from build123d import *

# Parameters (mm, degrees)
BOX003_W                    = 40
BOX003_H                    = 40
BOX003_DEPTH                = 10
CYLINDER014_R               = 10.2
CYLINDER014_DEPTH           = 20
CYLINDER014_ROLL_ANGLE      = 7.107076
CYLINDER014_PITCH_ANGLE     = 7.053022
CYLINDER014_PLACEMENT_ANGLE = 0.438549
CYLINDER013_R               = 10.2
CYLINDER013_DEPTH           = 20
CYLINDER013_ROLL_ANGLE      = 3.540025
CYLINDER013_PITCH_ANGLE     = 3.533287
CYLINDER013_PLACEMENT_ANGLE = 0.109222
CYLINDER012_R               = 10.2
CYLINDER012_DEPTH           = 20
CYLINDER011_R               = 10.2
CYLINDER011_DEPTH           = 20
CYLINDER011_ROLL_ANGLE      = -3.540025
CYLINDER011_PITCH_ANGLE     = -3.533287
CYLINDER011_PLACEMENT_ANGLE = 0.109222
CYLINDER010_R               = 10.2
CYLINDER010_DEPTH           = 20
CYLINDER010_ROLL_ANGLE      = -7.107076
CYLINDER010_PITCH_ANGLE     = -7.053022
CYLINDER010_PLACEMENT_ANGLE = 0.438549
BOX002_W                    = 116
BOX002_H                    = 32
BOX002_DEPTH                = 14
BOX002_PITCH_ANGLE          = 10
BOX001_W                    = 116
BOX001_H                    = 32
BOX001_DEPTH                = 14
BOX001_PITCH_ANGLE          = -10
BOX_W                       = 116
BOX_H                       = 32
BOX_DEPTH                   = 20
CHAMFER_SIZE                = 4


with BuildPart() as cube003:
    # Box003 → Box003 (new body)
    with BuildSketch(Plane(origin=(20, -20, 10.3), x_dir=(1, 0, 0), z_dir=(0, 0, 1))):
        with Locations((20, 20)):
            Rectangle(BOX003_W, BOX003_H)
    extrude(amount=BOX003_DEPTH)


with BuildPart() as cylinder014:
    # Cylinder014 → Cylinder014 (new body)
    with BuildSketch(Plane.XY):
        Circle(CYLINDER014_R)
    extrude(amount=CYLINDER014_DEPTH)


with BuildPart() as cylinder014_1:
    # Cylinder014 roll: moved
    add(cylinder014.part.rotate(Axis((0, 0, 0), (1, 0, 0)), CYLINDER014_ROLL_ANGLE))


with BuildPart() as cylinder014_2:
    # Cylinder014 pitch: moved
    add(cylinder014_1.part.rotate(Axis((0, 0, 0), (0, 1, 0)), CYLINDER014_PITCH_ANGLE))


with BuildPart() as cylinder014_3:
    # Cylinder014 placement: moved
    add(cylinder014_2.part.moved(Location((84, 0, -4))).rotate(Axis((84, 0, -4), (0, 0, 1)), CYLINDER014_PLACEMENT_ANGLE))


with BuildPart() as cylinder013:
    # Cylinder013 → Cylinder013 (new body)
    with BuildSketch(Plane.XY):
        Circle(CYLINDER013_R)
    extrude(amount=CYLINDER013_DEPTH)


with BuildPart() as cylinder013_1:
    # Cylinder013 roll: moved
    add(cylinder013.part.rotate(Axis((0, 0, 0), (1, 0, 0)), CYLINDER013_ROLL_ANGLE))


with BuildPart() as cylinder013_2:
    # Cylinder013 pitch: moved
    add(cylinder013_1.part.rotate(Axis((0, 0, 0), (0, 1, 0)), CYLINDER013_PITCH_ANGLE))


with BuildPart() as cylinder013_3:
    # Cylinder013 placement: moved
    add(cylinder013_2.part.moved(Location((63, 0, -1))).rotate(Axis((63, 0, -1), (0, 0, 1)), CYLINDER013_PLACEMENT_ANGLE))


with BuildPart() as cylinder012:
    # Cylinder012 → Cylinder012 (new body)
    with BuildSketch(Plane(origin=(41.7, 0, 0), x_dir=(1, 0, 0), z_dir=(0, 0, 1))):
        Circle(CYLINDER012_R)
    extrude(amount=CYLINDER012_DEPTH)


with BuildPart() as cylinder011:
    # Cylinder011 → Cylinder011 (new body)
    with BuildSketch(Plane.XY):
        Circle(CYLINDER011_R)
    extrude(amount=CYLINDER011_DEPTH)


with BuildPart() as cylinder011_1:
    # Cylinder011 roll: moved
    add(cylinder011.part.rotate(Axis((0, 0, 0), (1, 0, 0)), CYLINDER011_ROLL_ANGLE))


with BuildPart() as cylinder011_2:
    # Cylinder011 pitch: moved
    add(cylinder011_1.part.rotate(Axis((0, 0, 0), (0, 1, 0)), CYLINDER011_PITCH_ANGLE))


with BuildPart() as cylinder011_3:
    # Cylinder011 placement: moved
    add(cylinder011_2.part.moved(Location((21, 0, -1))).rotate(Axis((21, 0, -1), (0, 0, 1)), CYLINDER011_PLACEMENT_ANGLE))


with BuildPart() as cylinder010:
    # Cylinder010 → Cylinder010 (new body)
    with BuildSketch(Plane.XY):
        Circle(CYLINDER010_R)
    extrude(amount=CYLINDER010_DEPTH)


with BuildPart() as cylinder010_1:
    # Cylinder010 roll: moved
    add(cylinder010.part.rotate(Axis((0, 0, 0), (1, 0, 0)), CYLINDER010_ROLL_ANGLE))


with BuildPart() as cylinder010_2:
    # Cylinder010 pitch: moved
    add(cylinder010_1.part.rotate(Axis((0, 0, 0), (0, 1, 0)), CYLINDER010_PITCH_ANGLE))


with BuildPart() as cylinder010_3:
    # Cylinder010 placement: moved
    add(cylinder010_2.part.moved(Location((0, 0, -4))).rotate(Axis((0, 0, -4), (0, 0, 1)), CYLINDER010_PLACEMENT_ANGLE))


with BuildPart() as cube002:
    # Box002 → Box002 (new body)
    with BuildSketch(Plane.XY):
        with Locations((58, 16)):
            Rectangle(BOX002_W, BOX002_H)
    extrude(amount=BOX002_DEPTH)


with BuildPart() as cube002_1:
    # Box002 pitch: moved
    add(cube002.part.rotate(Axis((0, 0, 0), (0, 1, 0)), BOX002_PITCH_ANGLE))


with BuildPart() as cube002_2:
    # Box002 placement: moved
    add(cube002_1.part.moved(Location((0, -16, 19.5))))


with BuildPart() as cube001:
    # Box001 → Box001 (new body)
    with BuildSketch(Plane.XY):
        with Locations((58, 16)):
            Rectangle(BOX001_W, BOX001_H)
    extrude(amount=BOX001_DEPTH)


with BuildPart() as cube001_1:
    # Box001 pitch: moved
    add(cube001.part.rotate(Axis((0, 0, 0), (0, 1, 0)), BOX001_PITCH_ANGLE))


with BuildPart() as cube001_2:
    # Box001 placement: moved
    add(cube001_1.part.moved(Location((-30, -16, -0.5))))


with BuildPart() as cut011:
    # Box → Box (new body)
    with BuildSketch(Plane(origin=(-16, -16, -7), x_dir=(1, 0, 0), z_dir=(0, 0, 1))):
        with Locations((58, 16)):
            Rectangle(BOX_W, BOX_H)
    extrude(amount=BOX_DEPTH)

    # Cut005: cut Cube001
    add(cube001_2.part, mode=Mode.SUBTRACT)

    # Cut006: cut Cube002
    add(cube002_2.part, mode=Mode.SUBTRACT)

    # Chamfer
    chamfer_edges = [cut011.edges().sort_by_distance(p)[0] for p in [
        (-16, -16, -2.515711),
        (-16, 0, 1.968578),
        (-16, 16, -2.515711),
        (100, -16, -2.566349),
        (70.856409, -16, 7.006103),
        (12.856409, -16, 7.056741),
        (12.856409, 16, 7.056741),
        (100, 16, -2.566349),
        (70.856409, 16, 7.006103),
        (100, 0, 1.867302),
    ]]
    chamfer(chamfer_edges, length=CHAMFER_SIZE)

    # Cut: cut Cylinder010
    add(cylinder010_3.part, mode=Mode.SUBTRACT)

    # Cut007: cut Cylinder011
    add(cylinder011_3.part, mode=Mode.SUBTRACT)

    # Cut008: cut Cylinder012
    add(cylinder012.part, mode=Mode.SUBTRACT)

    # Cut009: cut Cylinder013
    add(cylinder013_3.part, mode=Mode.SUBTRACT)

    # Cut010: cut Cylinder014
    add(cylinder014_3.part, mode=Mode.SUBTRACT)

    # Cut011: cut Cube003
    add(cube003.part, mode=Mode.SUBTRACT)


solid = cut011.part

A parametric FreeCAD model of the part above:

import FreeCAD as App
import Part
import Sketcher


def edges_at(feature, points):
    """Names of the edges that pass closest to the given points."""
    edges = feature.Shape.Edges
    near = lambda p: min(range(len(edges)), key=lambda i: edges[i].distToShape(Part.Vertex(*p))[0])
    return sorted({f"Edge{near(p) + 1}" for p in points})


def add_polygon(sketch, points):
    """Adds a closed chain of lines whose ends are joined by coincident constraints."""
    first, n = sketch.GeometryCount, len(points)
    for a, b in zip(points, points[1:] + points[:1]):
        sketch.addGeometry(Part.LineSegment(App.Vector(*a, 0), App.Vector(*b, 0)), False)
    for i in range(n):
        sketch.addConstraint(Sketcher.Constraint("Coincident", first + i, 2, first + (i + 1) % n, 1))

doc = App.newDocument("Part")
body = doc.addObject("PartDesign::Body", "Body")

# Sketch on XY plane
sketch1 = doc.addObject("Sketcher::SketchObject", "Sketch")
body.addObject(sketch1)
sketch1.AttachmentSupport = (doc.XY_Plane, [""])
sketch1.MapMode = "FlatFace"
sketch1.AttachmentOffset = App.Placement(App.Vector(0, 0, 10.3), App.Rotation())
add_polygon(sketch1, [(20, 20), (20, -20), (60, -20), (60, 20)])  # lines 0-3
sketch1.addConstraint([
    Sketcher.Constraint("Vertical", 0),
    Sketcher.Constraint("Horizontal", 1),
    Sketcher.Constraint("Vertical", 2),
    Sketcher.Constraint("Horizontal", 3),
    Sketcher.Constraint("Equal", 3, 0),
    Sketcher.Constraint("DistanceX", 1, 1, 1, 2, 40.0),
    Sketcher.Constraint("DistanceX", -1, 1, 0, 2, 20.0),
    Sketcher.Constraint("DistanceY", 0, 2, -1, 1, 20.0),
])
pad1 = doc.addObject("PartDesign::Pad", "Pad")
body.addObject(pad1)
pad1.Profile = sketch1
pad1.Length = 10
body2 = doc.addObject("PartDesign::Body", "Body001")

# Sketch on XY plane
sketch2 = doc.addObject("Sketcher::SketchObject", "Sketch001")
body2.addObject(sketch2)
sketch2.AttachmentSupport = (doc.getObject("XY_Plane001"), [""])
sketch2.MapMode = "FlatFace"
sketch2.addGeometry(Part.Circle(App.Vector(0, 0, 0), App.Vector(0, 0, 1), 10), False)
sketch2.addConstraint([
    Sketcher.Constraint("Coincident", 0, 3, -1, 1),
    Sketcher.Constraint("Diameter", 0, 20.4),
])
pad2 = doc.addObject("PartDesign::Pad", "Pad001")
body2.addObject(pad2)
pad2.Profile = sketch2
pad2.Length = 20
body3 = doc.addObject("PartDesign::Body", "Body002")
doc.recompute()

body2.Placement = App.Placement(App.Vector(0, 0, 0), App.Rotation(App.Vector(1, 0, 0), 7.107076))
boolean = doc.addObject("PartDesign::Boolean", "Boolean")
body3.addObject(boolean)
boolean.Type = "Fuse"
boolean.addObjects([body2])
body4 = doc.addObject("PartDesign::Body", "Body003")
doc.recompute()

body3.Placement = App.Placement(App.Vector(0, 0, 0), App.Rotation(App.Vector(0, 1, 0), 7.053022))
boolean2 = doc.addObject("PartDesign::Boolean", "Boolean001")
body4.addObject(boolean2)
boolean2.Type = "Fuse"
boolean2.addObjects([body3])
body5 = doc.addObject("PartDesign::Body", "Body004")
doc.recompute()

body4.Placement = App.Placement(App.Vector(84, 0, -4), App.Rotation(App.Vector(0, 0, 1), 0.438549))
boolean3 = doc.addObject("PartDesign::Boolean", "Boolean002")
body5.addObject(boolean3)
boolean3.Type = "Fuse"
boolean3.addObjects([body4])
body6 = doc.addObject("PartDesign::Body", "Body005")

# Sketch on XY plane
sketch3 = doc.addObject("Sketcher::SketchObject", "Sketch002")
body6.addObject(sketch3)
sketch3.AttachmentSupport = (doc.getObject("XY_Plane005"), [""])
sketch3.MapMode = "FlatFace"
sketch3.addGeometry(Part.Circle(App.Vector(0, 0, 0), App.Vector(0, 0, 1), 10), False)
sketch3.addConstraint([
    Sketcher.Constraint("Coincident", 0, 3, -1, 1),
    Sketcher.Constraint("Diameter", 0, 20.4),
])
pad3 = doc.addObject("PartDesign::Pad", "Pad002")
body6.addObject(pad3)
pad3.Profile = sketch3
pad3.Length = 20
body7 = doc.addObject("PartDesign::Body", "Body006")
doc.recompute()

body6.Placement = App.Placement(App.Vector(0, 0, 0), App.Rotation(App.Vector(1, 0, 0), 3.540025))
boolean4 = doc.addObject("PartDesign::Boolean", "Boolean003")
body7.addObject(boolean4)
boolean4.Type = "Fuse"
boolean4.addObjects([body6])
body8 = doc.addObject("PartDesign::Body", "Body007")
doc.recompute()

body7.Placement = App.Placement(App.Vector(0, 0, 0), App.Rotation(App.Vector(0, 1, 0), 3.533287))
boolean5 = doc.addObject("PartDesign::Boolean", "Boolean004")
body8.addObject(boolean5)
boolean5.Type = "Fuse"
boolean5.addObjects([body7])
body9 = doc.addObject("PartDesign::Body", "Body008")
doc.recompute()

body8.Placement = App.Placement(App.Vector(63, 0, -1), App.Rotation(App.Vector(0, 0, 1), 0.109222))
boolean6 = doc.addObject("PartDesign::Boolean", "Boolean005")
body9.addObject(boolean6)
boolean6.Type = "Fuse"
boolean6.addObjects([body8])
body10 = doc.addObject("PartDesign::Body", "Body009")

# Sketch on XY plane
sketch4 = doc.addObject("Sketcher::SketchObject", "Sketch003")
body10.addObject(sketch4)
sketch4.AttachmentSupport = (doc.getObject("XY_Plane009"), [""])
sketch4.MapMode = "FlatFace"
sketch4.addGeometry(Part.Circle(App.Vector(42, 0, 0), App.Vector(0, 0, 1), 10), False)
sketch4.addConstraint([
    Sketcher.Constraint("PointOnObject", 0, 3, -1),
    Sketcher.Constraint("Diameter", 0, 20.4),
    Sketcher.Constraint("DistanceX", -1, 1, 0, 3, 41.7),
])
pad4 = doc.addObject("PartDesign::Pad", "Pad003")
body10.addObject(pad4)
pad4.Profile = sketch4
pad4.Length = 20
body11 = doc.addObject("PartDesign::Body", "Body010")

# Sketch on XY plane
sketch5 = doc.addObject("Sketcher::SketchObject", "Sketch004")
body11.addObject(sketch5)
sketch5.AttachmentSupport = (doc.getObject("XY_Plane010"), [""])
sketch5.MapMode = "FlatFace"
sketch5.addGeometry(Part.Circle(App.Vector(0, 0, 0), App.Vector(0, 0, 1), 10), False)
sketch5.addConstraint([
    Sketcher.Constraint("Coincident", 0, 3, -1, 1),
    Sketcher.Constraint("Diameter", 0, 20.4),
])
pad5 = doc.addObject("PartDesign::Pad", "Pad004")
body11.addObject(pad5)
pad5.Profile = sketch5
pad5.Length = 20
body12 = doc.addObject("PartDesign::Body", "Body011")
doc.recompute()

body11.Placement = App.Placement(App.Vector(0, 0, 0), App.Rotation(App.Vector(1, 0, 0), 356.459975))
boolean7 = doc.addObject("PartDesign::Boolean", "Boolean006")
body12.addObject(boolean7)
boolean7.Type = "Fuse"
boolean7.addObjects([body11])
body13 = doc.addObject("PartDesign::Body", "Body012")
doc.recompute()

body12.Placement = App.Placement(App.Vector(0, 0, 0), App.Rotation(App.Vector(0, 1, 0), 356.466713))
boolean8 = doc.addObject("PartDesign::Boolean", "Boolean007")
body13.addObject(boolean8)
boolean8.Type = "Fuse"
boolean8.addObjects([body12])
body14 = doc.addObject("PartDesign::Body", "Body013")
doc.recompute()

body13.Placement = App.Placement(App.Vector(21, 0, -1), App.Rotation(App.Vector(0, 0, 1), 0.109222))
boolean9 = doc.addObject("PartDesign::Boolean", "Boolean008")
body14.addObject(boolean9)
boolean9.Type = "Fuse"
boolean9.addObjects([body13])
body15 = doc.addObject("PartDesign::Body", "Body014")

# Sketch on XY plane
sketch6 = doc.addObject("Sketcher::SketchObject", "Sketch005")
body15.addObject(sketch6)
sketch6.AttachmentSupport = (doc.getObject("XY_Plane014"), [""])
sketch6.MapMode = "FlatFace"
sketch6.addGeometry(Part.Circle(App.Vector(0, 0, 0), App.Vector(0, 0, 1), 10), False)
sketch6.addConstraint([
    Sketcher.Constraint("Coincident", 0, 3, -1, 1),
    Sketcher.Constraint("Diameter", 0, 20.4),
])
pad6 = doc.addObject("PartDesign::Pad", "Pad005")
body15.addObject(pad6)
pad6.Profile = sketch6
pad6.Length = 20
body16 = doc.addObject("PartDesign::Body", "Body015")
doc.recompute()

body15.Placement = App.Placement(App.Vector(0, 0, 0), App.Rotation(App.Vector(1, 0, 0), 352.892924))
boolean10 = doc.addObject("PartDesign::Boolean", "Boolean009")
body16.addObject(boolean10)
boolean10.Type = "Fuse"
boolean10.addObjects([body15])
body17 = doc.addObject("PartDesign::Body", "Body016")
doc.recompute()

body16.Placement = App.Placement(App.Vector(0, 0, 0), App.Rotation(App.Vector(0, 1, 0), 352.946978))
boolean11 = doc.addObject("PartDesign::Boolean", "Boolean010")
body17.addObject(boolean11)
boolean11.Type = "Fuse"
boolean11.addObjects([body16])
body18 = doc.addObject("PartDesign::Body", "Body017")
doc.recompute()

body17.Placement = App.Placement(App.Vector(0, 0, -4), App.Rotation(App.Vector(0, 0, 1), 0.438549))
boolean12 = doc.addObject("PartDesign::Boolean", "Boolean011")
body18.addObject(boolean12)
boolean12.Type = "Fuse"
boolean12.addObjects([body17])
body19 = doc.addObject("PartDesign::Body", "Body018")

# Sketch on XY plane
sketch7 = doc.addObject("Sketcher::SketchObject", "Sketch006")
body19.addObject(sketch7)
sketch7.AttachmentSupport = (doc.getObject("XY_Plane018"), [""])
sketch7.MapMode = "FlatFace"
add_polygon(sketch7, [(0, 32), (0, 0), (116, 0), (116, 32)])  # lines 0-3
sketch7.addConstraint([
    Sketcher.Constraint("Vertical", 0),
    Sketcher.Constraint("Horizontal", 1),
    Sketcher.Constraint("Vertical", 2),
    Sketcher.Constraint("Horizontal", 3),
    Sketcher.Constraint("Coincident", 0, 2, -1, 1),
    Sketcher.Constraint("DistanceX", 1, 1, 1, 2, 116.0),
    Sketcher.Constraint("DistanceY", 0, 2, 0, 1, 32.0),
])
pad7 = doc.addObject("PartDesign::Pad", "Pad006")
body19.addObject(pad7)
pad7.Profile = sketch7
pad7.Length = 14
body20 = doc.addObject("PartDesign::Body", "Body019")
doc.recompute()

body19.Placement = App.Placement(App.Vector(0, 0, 0), App.Rotation(App.Vector(0, 1, 0), 10))
boolean13 = doc.addObject("PartDesign::Boolean", "Boolean012")
body20.addObject(boolean13)
boolean13.Type = "Fuse"
boolean13.addObjects([body19])
body21 = doc.addObject("PartDesign::Body", "Body020")
doc.recompute()

body20.Placement = App.Placement(App.Vector(0, -16, 19.5), App.Rotation(App.Vector(0, 0, 1), 0))
boolean14 = doc.addObject("PartDesign::Boolean", "Boolean013")
body21.addObject(boolean14)
boolean14.Type = "Fuse"
boolean14.addObjects([body20])
body22 = doc.addObject("PartDesign::Body", "Body021")

# Sketch on XY plane
sketch8 = doc.addObject("Sketcher::SketchObject", "Sketch007")
body22.addObject(sketch8)
sketch8.AttachmentSupport = (doc.getObject("XY_Plane021"), [""])
sketch8.MapMode = "FlatFace"
add_polygon(sketch8, [(0, 32), (0, 0), (116, 0), (116, 32)])  # lines 0-3
sketch8.addConstraint([
    Sketcher.Constraint("Vertical", 0),
    Sketcher.Constraint("Horizontal", 1),
    Sketcher.Constraint("Vertical", 2),
    Sketcher.Constraint("Horizontal", 3),
    Sketcher.Constraint("Coincident", 0, 2, -1, 1),
    Sketcher.Constraint("DistanceX", 1, 1, 1, 2, 116.0),
    Sketcher.Constraint("DistanceY", 0, 2, 0, 1, 32.0),
])
pad8 = doc.addObject("PartDesign::Pad", "Pad007")
body22.addObject(pad8)
pad8.Profile = sketch8
pad8.Length = 14
body23 = doc.addObject("PartDesign::Body", "Body022")
doc.recompute()

body22.Placement = App.Placement(App.Vector(0, 0, 0), App.Rotation(App.Vector(0, 1, 0), 350))
boolean15 = doc.addObject("PartDesign::Boolean", "Boolean014")
body23.addObject(boolean15)
boolean15.Type = "Fuse"
boolean15.addObjects([body22])
body24 = doc.addObject("PartDesign::Body", "Body023")
doc.recompute()

body23.Placement = App.Placement(App.Vector(-30, -16, -0.5), App.Rotation(App.Vector(0, 0, 1), 0))
boolean16 = doc.addObject("PartDesign::Boolean", "Boolean015")
body24.addObject(boolean16)
boolean16.Type = "Fuse"
boolean16.addObjects([body23])
body25 = doc.addObject("PartDesign::Body", "Body024")

# Sketch on XY plane
sketch9 = doc.addObject("Sketcher::SketchObject", "Sketch008")
body25.addObject(sketch9)
sketch9.AttachmentSupport = (doc.getObject("XY_Plane024"), [""])
sketch9.MapMode = "FlatFace"
sketch9.AttachmentOffset = App.Placement(App.Vector(0, 0, -7), App.Rotation())
add_polygon(sketch9, [(-16, 16), (-16, -16), (100, -16), (100, 16)])  # lines 0-3
sketch9.addConstraint([
    Sketcher.Constraint("Vertical", 0),
    Sketcher.Constraint("Horizontal", 1),
    Sketcher.Constraint("Vertical", 2),
    Sketcher.Constraint("Horizontal", 3),
    Sketcher.Constraint("DistanceX", 1, 1, 1, 2, 116.0),
    Sketcher.Constraint("DistanceY", 0, 2, 0, 1, 32.0),
    Sketcher.Constraint("DistanceX", 0, 2, -1, 1, 16.0),
    Sketcher.Constraint("DistanceY", 0, 2, -1, 1, 16.0),
])
pad9 = doc.addObject("PartDesign::Pad", "Pad008")
body25.addObject(pad9)
pad9.Profile = sketch9
pad9.Length = 20
doc.recompute()

boolean17 = doc.addObject("PartDesign::Boolean", "Boolean016")
body25.addObject(boolean17)
boolean17.Type = "Cut"
boolean17.addObjects([body24])
doc.recompute()

boolean18 = doc.addObject("PartDesign::Boolean", "Boolean017")
body25.addObject(boolean18)
boolean18.Type = "Cut"
boolean18.addObjects([body21])
doc.recompute()

chamfer = doc.addObject("PartDesign::Chamfer", "Chamfer")
body25.addObject(chamfer)
chamfer.Base = (boolean18, edges_at(boolean18, [
    (-16, -16, -2.516),
    (-16, 0, 1.969),
    (-16, 16, -2.516),
    (100, -16, -2.566),
    (70.856, -16, 7.006),
    (12.856, -16, 7.057),
    (12.856, 16, 7.057),
    (100, 16, -2.566),
    (70.856, 16, 7.006),
    (100, 0, 1.867),
]))
chamfer.Size = 4
doc.recompute()

boolean19 = doc.addObject("PartDesign::Boolean", "Boolean018")
body25.addObject(boolean19)
boolean19.Type = "Cut"
boolean19.addObjects([body18])
doc.recompute()

boolean20 = doc.addObject("PartDesign::Boolean", "Boolean019")
body25.addObject(boolean20)
boolean20.Type = "Cut"
boolean20.addObjects([body14])
doc.recompute()

boolean21 = doc.addObject("PartDesign::Boolean", "Boolean020")
body25.addObject(boolean21)
boolean21.Type = "Cut"
boolean21.addObjects([body10])
doc.recompute()

boolean22 = doc.addObject("PartDesign::Boolean", "Boolean021")
body25.addObject(boolean22)
boolean22.Type = "Cut"
boolean22.addObjects([body9])
doc.recompute()

boolean23 = doc.addObject("PartDesign::Boolean", "Boolean022")
body25.addObject(boolean23)
boolean23.Type = "Cut"
boolean23.addObjects([body5])
doc.recompute()

boolean24 = doc.addObject("PartDesign::Boolean", "Boolean023")
body25.addObject(boolean24)
boolean24.Type = "Cut"
boolean24.addObjects([body])

doc.recompute()
